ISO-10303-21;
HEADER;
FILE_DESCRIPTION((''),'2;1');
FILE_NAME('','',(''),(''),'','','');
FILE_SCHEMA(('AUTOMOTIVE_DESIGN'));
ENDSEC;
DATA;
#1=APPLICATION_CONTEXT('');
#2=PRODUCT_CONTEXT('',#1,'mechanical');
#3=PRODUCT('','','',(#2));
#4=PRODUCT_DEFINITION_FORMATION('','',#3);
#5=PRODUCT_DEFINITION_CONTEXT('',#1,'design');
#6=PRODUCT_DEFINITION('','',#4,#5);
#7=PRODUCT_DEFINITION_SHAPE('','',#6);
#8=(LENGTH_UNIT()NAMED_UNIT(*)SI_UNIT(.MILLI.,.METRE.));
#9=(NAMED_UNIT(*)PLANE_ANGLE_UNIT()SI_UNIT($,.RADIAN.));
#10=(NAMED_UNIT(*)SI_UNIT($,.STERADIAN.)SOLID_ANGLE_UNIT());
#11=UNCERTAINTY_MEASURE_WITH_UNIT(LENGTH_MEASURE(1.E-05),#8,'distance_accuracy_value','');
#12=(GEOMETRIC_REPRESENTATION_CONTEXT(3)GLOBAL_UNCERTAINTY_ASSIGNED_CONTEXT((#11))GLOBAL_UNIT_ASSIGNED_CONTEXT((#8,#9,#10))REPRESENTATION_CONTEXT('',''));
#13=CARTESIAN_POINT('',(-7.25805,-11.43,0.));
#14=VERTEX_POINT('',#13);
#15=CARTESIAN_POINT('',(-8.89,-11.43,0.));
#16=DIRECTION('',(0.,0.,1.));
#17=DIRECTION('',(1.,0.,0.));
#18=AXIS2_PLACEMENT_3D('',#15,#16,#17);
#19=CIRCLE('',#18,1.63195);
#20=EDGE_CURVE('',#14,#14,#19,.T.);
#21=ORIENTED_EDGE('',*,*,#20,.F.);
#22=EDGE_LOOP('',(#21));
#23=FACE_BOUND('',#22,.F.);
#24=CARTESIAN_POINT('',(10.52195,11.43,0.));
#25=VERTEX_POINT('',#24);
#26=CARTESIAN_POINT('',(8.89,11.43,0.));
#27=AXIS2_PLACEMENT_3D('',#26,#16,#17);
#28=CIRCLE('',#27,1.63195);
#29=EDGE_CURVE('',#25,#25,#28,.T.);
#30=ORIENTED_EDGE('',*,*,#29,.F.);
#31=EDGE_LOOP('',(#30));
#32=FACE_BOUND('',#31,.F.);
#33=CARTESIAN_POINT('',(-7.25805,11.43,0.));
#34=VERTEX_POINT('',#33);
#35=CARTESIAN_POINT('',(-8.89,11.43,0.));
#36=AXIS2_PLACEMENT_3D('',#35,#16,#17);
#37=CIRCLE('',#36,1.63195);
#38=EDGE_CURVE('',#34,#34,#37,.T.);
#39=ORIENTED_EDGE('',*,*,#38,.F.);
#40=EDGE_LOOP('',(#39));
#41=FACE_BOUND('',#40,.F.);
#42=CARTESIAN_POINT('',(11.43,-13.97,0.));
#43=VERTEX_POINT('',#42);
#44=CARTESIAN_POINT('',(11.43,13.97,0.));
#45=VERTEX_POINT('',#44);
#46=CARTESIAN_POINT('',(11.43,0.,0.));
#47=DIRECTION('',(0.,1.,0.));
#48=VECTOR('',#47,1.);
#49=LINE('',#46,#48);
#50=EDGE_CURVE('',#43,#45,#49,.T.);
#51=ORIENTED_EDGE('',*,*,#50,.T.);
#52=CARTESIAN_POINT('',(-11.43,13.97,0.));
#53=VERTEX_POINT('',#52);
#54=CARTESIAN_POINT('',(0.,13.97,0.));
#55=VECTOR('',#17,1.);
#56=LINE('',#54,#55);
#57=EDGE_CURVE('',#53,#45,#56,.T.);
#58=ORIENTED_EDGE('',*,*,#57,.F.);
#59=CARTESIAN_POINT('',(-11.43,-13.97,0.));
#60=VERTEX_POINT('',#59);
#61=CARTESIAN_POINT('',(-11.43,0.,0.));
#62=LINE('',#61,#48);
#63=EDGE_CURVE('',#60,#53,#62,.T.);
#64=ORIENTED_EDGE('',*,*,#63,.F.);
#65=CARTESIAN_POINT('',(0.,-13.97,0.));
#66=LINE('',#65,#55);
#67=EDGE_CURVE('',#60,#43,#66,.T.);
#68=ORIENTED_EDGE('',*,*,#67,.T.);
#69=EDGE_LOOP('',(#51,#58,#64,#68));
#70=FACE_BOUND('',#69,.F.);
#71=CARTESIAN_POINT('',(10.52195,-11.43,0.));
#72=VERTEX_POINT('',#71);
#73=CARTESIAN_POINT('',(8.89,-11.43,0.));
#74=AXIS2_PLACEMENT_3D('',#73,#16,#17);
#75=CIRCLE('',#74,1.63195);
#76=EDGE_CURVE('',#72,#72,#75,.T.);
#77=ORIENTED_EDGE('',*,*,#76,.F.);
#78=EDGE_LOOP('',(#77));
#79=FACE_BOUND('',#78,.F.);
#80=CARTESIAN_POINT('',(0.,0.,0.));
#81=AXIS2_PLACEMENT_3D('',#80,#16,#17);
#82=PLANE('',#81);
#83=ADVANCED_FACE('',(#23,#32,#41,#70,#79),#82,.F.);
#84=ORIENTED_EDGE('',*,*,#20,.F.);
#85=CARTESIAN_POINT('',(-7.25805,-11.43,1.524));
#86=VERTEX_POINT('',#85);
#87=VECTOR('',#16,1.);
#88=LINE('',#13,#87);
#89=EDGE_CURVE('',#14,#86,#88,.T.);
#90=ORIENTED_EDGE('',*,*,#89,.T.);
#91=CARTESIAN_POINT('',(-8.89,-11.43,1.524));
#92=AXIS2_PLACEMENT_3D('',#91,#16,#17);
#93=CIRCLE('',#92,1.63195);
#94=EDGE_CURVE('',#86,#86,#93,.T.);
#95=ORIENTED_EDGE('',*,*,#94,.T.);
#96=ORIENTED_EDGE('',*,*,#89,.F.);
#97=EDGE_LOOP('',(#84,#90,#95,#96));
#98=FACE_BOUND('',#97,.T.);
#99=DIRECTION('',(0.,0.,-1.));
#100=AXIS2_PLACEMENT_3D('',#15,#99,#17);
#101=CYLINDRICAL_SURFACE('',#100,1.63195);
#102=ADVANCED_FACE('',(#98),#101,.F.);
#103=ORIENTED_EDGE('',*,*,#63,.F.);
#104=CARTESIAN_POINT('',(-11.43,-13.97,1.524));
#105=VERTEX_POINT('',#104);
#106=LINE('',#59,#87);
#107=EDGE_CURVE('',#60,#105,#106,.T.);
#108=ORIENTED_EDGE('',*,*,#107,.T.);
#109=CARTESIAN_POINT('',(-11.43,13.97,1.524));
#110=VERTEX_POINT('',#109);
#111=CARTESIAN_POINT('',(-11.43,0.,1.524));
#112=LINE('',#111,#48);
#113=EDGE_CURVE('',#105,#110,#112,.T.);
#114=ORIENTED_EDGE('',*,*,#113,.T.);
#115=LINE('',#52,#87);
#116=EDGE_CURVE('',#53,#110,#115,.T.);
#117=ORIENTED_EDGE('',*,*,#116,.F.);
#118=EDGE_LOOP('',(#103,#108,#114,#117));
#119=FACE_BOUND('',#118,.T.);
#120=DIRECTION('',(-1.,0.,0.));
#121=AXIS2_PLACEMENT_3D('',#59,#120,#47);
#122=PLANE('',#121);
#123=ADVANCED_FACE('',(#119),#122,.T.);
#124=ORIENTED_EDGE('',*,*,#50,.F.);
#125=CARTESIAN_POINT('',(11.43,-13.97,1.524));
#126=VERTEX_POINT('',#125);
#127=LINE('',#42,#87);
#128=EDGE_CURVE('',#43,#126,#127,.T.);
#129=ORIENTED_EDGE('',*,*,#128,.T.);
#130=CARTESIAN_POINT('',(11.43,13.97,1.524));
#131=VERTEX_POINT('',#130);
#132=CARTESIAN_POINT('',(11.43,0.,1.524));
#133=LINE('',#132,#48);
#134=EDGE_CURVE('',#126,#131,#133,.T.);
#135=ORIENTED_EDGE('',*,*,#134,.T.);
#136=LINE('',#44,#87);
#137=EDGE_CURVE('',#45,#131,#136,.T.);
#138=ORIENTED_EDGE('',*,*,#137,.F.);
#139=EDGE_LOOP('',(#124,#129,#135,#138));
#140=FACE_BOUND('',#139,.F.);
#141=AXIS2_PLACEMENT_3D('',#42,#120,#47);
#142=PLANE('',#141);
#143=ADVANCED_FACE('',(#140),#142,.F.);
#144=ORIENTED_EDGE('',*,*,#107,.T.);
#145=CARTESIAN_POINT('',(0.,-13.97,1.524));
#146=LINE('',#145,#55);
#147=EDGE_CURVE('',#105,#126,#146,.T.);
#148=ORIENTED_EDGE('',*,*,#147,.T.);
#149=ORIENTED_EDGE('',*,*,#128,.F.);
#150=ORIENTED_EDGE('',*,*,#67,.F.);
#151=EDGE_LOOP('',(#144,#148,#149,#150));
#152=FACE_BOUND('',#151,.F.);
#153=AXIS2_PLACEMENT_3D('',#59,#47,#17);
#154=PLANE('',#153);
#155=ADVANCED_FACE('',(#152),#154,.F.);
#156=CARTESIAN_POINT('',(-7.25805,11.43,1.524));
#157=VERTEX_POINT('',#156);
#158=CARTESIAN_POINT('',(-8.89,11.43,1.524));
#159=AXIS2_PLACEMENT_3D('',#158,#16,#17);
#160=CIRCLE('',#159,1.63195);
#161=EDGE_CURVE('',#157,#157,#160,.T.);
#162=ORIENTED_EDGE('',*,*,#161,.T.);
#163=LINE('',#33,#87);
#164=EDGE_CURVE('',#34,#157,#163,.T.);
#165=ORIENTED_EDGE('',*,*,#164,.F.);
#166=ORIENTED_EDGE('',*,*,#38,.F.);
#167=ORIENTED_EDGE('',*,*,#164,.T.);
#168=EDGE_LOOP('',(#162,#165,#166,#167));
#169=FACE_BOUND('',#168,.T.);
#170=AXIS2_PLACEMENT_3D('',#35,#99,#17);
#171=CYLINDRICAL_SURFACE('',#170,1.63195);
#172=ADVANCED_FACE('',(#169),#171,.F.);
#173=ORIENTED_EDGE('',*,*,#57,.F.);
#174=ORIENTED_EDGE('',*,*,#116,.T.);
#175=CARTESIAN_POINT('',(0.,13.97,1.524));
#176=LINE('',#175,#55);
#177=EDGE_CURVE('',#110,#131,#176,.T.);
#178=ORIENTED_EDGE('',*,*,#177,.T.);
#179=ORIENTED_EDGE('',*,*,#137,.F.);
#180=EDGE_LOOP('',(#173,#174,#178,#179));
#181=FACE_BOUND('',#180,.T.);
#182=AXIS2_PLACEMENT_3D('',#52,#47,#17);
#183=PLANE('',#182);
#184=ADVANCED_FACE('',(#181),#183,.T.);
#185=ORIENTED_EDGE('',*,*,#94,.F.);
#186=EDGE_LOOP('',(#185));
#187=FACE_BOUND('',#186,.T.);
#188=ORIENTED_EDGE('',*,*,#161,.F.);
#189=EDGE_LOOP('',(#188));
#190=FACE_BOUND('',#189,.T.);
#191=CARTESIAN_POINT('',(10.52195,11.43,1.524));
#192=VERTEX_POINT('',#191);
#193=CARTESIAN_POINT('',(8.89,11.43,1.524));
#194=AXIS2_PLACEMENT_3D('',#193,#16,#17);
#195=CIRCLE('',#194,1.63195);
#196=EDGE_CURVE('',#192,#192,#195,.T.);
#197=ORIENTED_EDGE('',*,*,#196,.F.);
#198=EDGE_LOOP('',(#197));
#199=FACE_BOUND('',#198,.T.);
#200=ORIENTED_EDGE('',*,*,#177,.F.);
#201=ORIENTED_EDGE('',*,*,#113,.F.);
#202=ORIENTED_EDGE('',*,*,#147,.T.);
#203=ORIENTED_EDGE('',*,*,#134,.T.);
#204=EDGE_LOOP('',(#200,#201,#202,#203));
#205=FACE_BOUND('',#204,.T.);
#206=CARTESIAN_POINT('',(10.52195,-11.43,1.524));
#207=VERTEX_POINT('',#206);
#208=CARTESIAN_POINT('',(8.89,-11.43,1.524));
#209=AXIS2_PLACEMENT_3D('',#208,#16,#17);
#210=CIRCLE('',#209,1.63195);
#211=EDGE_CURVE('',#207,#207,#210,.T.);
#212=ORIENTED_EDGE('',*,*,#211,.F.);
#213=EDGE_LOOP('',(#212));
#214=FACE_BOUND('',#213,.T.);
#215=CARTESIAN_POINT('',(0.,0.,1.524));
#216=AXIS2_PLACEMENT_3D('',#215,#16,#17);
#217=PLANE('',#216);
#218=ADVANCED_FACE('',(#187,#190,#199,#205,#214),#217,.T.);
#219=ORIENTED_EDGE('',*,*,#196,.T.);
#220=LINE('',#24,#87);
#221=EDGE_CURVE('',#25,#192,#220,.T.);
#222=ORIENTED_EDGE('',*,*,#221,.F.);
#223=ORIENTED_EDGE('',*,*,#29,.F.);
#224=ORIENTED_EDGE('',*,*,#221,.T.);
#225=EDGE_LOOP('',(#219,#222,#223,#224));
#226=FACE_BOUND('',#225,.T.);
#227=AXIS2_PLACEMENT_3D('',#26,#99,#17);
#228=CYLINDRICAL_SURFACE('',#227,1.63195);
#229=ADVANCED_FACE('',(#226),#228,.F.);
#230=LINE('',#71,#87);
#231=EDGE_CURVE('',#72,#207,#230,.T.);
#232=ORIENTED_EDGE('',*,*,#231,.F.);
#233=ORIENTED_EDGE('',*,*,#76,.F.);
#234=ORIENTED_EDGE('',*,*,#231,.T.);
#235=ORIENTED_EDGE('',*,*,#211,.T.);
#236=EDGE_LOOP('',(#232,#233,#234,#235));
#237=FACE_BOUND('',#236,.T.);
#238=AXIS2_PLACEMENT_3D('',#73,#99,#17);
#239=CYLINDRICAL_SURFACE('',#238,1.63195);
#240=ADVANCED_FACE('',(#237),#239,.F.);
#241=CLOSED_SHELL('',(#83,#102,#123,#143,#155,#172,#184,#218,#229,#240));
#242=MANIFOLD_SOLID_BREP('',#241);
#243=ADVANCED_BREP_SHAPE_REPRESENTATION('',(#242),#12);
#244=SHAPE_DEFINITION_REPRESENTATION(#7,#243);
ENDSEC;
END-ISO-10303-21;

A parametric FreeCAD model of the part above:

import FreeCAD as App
import Part
import Sketcher

V = App.Vector
Q = App.Units.Quantity


def add_polygon(sketch, points):
    """Adds a closed chain of lines whose ends are joined by coincident constraints."""
    first, n = sketch.GeometryCount, len(points)
    for a, b in zip(points, points[1:] + points[:1]):
        sketch.addGeometry(Part.LineSegment(App.Vector(*a, 0), App.Vector(*b, 0)), False)
    for i in range(n):
        sketch.addConstraint(Sketcher.Constraint("Coincident", first + i, 2, first + (i + 1) % n, 1))

doc = App.newDocument("Part")
body = doc.addObject("PartDesign::Body", "Body")

# Sketch on XY plane
sketch1 = doc.addObject("Sketcher::SketchObject", "Sketch")
body.addObject(sketch1)
sketch1.AttachmentSupport = (doc.XY_Plane, [""])
sketch1.MapMode = "FlatFace"
add_polygon(sketch1, [(-11.4, 14), (-11.4, -14), (11.4, -14), (11.4, 14)])  # lines 0-3
sketch1.addGeometry(Part.Circle(V(-8.9, -11.4, 0), V(0, 0, 1), 1.6), False)  # 4
sketch1.addGeometry(Part.Circle(V(8.9, -11.4, 0), V(0, 0, 1), 1.6), False)  # 5
sketch1.addGeometry(Part.Circle(V(-8.9, 11.4, 0), V(0, 0, 1), 1.6), False)  # 6
sketch1.addGeometry(Part.Circle(V(8.9, 11.4, 0), V(0, 0, 1), 1.6), False)  # 7
sketch1.addConstraint([
    Sketcher.Constraint("Vertical", 0),
    Sketcher.Constraint("Horizontal", 1),
    Sketcher.Constraint("Vertical", 2),
    Sketcher.Constraint("Horizontal", 3),
    Sketcher.Constraint("Equal", 4, 5),
    Sketcher.Constraint("Equal", 5, 6),
    Sketcher.Constraint("Equal", 6, 7),
    Sketcher.Constraint("Symmetric", 5, 3, 6, 3, -1, 1),
    Sketcher.Constraint("Symmetric", 4, 3, 7, 3, -1, 1),
    Sketcher.Constraint("Symmetric", 0, 2, 2, 2, -1, 1),
    Sketcher.Constraint("Symmetric", 4, 3, 5, 3, -2),
    Sketcher.Constraint("DistanceX", 1, 1, 1, 2, Q("0.9 in")),
    Sketcher.Constraint("DistanceY", 0, 2, 0, 1, Q("1.1 in")),
    Sketcher.Constraint("DistanceY", 0, 2, 6, 3, Q("1 in")),
    Sketcher.Constraint("Diameter", 4, Q("0.1285 in")),
    Sketcher.Constraint("DistanceX", 4, 3, 5, 3, Q("0.7 in")),
])
pad1 = doc.addObject("PartDesign::Pad", "Pad")
body.addObject(pad1)
pad1.Profile = sketch1
pad1.Length = Q("0.06 in")

doc.recompute()
